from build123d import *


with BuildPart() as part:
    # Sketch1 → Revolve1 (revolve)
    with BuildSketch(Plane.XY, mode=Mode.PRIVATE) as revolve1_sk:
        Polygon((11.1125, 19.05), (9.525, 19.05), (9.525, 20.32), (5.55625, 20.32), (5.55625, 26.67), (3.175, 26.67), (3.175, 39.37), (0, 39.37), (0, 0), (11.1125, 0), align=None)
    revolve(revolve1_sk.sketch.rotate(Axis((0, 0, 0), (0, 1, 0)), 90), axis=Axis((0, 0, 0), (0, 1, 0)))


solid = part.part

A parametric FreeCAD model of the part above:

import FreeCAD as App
import Part
import Sketcher
Q = App.Units.Quantity


def add_polygon(sketch, points):
    """Adds a closed chain of lines whose ends are joined by coincident constraints."""
    first, n = sketch.GeometryCount, len(points)
    for a, b in zip(points, points[1:] + points[:1]):
        sketch.addGeometry(Part.LineSegment(App.Vector(*a, 0), App.Vector(*b, 0)), False)
    for i in range(n):
        sketch.addConstraint(Sketcher.Constraint("Coincident", first + i, 2, first + (i + 1) % n, 1))

doc = App.newDocument("Part")
params = doc.addObject("Spreadsheet::Sheet", "Params")
for row, (alias, value) in enumerate([
    ("sketch1_height", "0.5 in"),
    ("sketch1_height2", "0.05 in"),
    ("sketch1_height3", "0.25 in"),
    ("sketch1_height4", "1.55 in"),
    ("sketch1_width", "0.0625 in"),
    ("revolution_angle", "360 deg"),
], start=1):
    params.set(f"A{row}", alias)
    params.set(f"B{row}", "=" + value)
    params.setAlias(f"B{row}", alias)

body = doc.addObject("PartDesign::Body", "Body")

sketch1 = doc.addObject("Sketcher::SketchObject", "Sketch")
body.addObject(sketch1)
sketch1.AttachmentSupport = (doc.XY_Plane, [""])
sketch1.MapMode = "FlatFace"
add_polygon(sketch1, [(11.1, 19.1), (9.5, 19.1), (9.5, 20.3), (5.6, 20.3), (5.6, 26.7), (3.2, 26.7), (3.2, 39.4), (0, 39.4), (0, 0), (11.1, 0)])
sketch1.addConstraint([
    Sketcher.Constraint("Horizontal", 0),
    Sketcher.Constraint("Vertical", 1),
    Sketcher.Constraint("Horizontal", 2),
    Sketcher.Constraint("Vertical", 3),
    Sketcher.Constraint("Horizontal", 4),
    Sketcher.Constraint("Vertical", 5),
    Sketcher.Constraint("Horizontal", 6),
    Sketcher.Constraint("Vertical", 7),
    Sketcher.Constraint("Horizontal", 8),
    Sketcher.Constraint("Vertical", 9),
    Sketcher.Constraint("Coincident", 7, 2, -1, 1),
    Sketcher.Constraint("DistanceY", 5, 1, 5, 2, Q("0.5 in")),
    Sketcher.Constraint("DistanceY", 1, 1, 1, 2, Q("0.05 in")),
    Sketcher.Constraint("DistanceY", 3, 1, 3, 2, Q("0.25 in")),
    Sketcher.Constraint("DistanceY", 7, 2, 7, 1, Q("1.55 in")),
    Sketcher.Constraint("DistanceX", 0, 2, 0, 1, Q("0.0625 in")),
    Sketcher.Constraint("DistanceX", 2, 2, 2, 1, Q("0.15625 in")),
    Sketcher.Constraint("DistanceX", 4, 2, 4, 1, Q("0.09375 in")),
    Sketcher.Constraint("DistanceX", 6, 2, 6, 1, Q("0.125 in")),
])
sketch1.setExpression("Constraints[21]", "Params.sketch1_height")
sketch1.setExpression("Constraints[22]", "Params.sketch1_height2")
sketch1.setExpression("Constraints[23]", "Params.sketch1_height3")
sketch1.setExpression("Constraints[24]", "Params.sketch1_height4")
sketch1.setExpression("Constraints[25]", "Params.sketch1_width")
revolution = doc.addObject("PartDesign::Revolution", "Revolution")
body.addObject(revolution)
revolution.Profile = sketch1
revolution.ReferenceAxis = (sketch1, ["V_Axis"])
revolution.setExpression("Angle", "Params.revolution_angle")

doc.recompute()
